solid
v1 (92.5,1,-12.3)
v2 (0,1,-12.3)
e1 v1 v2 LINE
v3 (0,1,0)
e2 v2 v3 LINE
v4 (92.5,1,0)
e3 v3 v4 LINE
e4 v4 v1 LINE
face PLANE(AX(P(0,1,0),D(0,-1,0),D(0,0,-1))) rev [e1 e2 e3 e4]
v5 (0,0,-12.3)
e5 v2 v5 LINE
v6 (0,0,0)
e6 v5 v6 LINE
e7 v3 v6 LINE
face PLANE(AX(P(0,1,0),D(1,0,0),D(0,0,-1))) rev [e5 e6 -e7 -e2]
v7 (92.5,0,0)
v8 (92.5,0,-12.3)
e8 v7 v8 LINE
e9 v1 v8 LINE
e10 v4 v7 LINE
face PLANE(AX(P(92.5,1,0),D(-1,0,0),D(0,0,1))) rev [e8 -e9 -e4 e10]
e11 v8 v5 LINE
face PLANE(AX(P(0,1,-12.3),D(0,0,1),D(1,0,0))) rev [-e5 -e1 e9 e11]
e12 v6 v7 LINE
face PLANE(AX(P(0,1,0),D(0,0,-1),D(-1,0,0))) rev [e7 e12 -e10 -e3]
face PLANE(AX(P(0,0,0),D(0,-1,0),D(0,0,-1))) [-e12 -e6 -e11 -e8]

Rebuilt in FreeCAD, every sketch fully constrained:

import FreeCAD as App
import Part
import Sketcher

V = App.Vector

doc = App.newDocument("Part")
body = doc.addObject("PartDesign::Body", "Body")

# Sketch on XZ plane
sketch1 = body.newObject("Sketcher::SketchObject", "Sketch")
sketch1.AttachmentSupport = (doc.getObject("XZ_Plane"), [""])
sketch1.MapMode = "FlatFace"
sketch1.addGeometry([
    Part.LineSegment(V(0, -12, 0), V(0, 0, 0)),
    Part.LineSegment(V(0, 0, 0), V(92, 0, 0)),
    Part.LineSegment(V(92, 0, 0), V(92, -12, 0)),
    Part.LineSegment(V(92, -12, 0), V(0, -12, 0)),
], False)
sketch1.addConstraint([
    Sketcher.Constraint("Coincident", 0, 2, 1, 1),
    Sketcher.Constraint("Coincident", 1, 2, 2, 1),
    Sketcher.Constraint("Coincident", 2, 2, 3, 1),
    Sketcher.Constraint("Coincident", 3, 2, 0, 1),
    Sketcher.Constraint("Vertical", 0),
    Sketcher.Constraint("Horizontal", 1),
    Sketcher.Constraint("Vertical", 2),
    Sketcher.Constraint("Horizontal", 3),
    Sketcher.Constraint("Coincident", 0, 2, -1, 1),
    Sketcher.Constraint("DistanceX", 1, 1, 1, 2, 92.5),
    Sketcher.Constraint("DistanceY", 0, 1, 0, 2, 12.3),
])
pad1 = body.newObject("PartDesign::Pad", "Pad")
pad1.Profile = sketch1
pad1.Length = 1
pad1.Reversed = True

doc.recompute()
